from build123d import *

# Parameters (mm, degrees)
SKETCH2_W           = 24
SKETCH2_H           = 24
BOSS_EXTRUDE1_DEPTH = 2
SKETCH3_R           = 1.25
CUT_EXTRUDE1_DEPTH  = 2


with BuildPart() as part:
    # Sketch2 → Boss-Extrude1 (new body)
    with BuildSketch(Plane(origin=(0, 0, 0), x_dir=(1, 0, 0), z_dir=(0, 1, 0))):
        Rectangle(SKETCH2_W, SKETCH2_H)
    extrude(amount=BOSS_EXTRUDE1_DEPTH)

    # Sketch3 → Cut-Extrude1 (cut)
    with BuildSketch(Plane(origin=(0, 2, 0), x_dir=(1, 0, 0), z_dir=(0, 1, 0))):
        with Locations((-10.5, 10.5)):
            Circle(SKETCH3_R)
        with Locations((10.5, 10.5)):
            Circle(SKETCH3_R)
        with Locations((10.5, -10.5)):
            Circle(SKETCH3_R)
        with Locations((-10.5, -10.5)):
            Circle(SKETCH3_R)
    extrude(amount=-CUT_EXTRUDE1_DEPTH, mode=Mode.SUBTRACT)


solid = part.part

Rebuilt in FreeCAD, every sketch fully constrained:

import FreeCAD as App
import Part
import Sketcher

V = App.Vector


def add_polygon(sketch, points):
    """Adds a closed chain of lines whose ends are joined by coincident constraints."""
    first, n = sketch.GeometryCount, len(points)
    for a, b in zip(points, points[1:] + points[:1]):
        sketch.addGeometry(Part.LineSegment(App.Vector(*a, 0), App.Vector(*b, 0)), False)
    for i in range(n):
        sketch.addConstraint(Sketcher.Constraint("Coincident", first + i, 2, first + (i + 1) % n, 1))

doc = App.newDocument("Part")
params = doc.addObject("Spreadsheet::Sheet", "Params")
for row, (alias, value) in enumerate([
    ("sketch1_width", "24 mm"),
    ("pad1_length", "2 mm"),
    ("sketch2_diameter", "2.5 mm"),
    ("pocket1_length", "2 mm"),
], start=1):
    params.set(f"A{row}", alias)
    params.set(f"B{row}", "=" + value)
    params.setAlias(f"B{row}", alias)

body = doc.addObject("PartDesign::Body", "Body")

sketch1 = doc.addObject("Sketcher::SketchObject", "Sketch")
body.addObject(sketch1)
sketch1.AttachmentSupport = (doc.XZ_Plane, [""])
sketch1.MapMode = "FlatFace"
add_polygon(sketch1, [(-12, -12), (-12, 12), (12, 12), (12, -12)])
sketch1.addConstraint(Sketcher.Constraint("Vertical", 0))
sketch1.addConstraint(Sketcher.Constraint("Horizontal", 1))
sketch1.addConstraint(Sketcher.Constraint("Vertical", 2))
sketch1.addConstraint(Sketcher.Constraint("Horizontal", 3))
sketch1.addConstraint(Sketcher.Constraint("Symmetric", 0, 2, 2, 2, -1, 1))
sketch1.addConstraint(Sketcher.Constraint("Equal", 3, 0))
sketch1.addConstraint(Sketcher.Constraint("DistanceX", 1, 1, 1, 2, 24.0))
sketch1.setExpression("Constraints[10]", "Params.sketch1_width")
pad1 = doc.addObject("PartDesign::Pad", "Pad")
body.addObject(pad1)
pad1.Profile = sketch1
pad1.setExpression("Length", "Params.pad1_length")
pad1.Reversed = True

sketch2 = doc.addObject("Sketcher::SketchObject", "Sketch001")
body.addObject(sketch2)
sketch2.AttachmentSupport = (doc.XZ_Plane, [""])
sketch2.MapMode = "FlatFace"
sketch2.AttachmentOffset = App.Placement(V(0, 0, -2), App.Rotation())
sketch2.addGeometry(Part.Circle(V(-10.5, -10.5, 0), V(0, 0, 1), 1.2), False)
sketch2.addGeometry(Part.Circle(V(10.5, -10.5, 0), V(0, 0, 1), 1.2), False)
sketch2.addGeometry(Part.Circle(V(10.5, 10.5, 0), V(0, 0, 1), 1.2), False)
sketch2.addGeometry(Part.Circle(V(-10.5, 10.5, 0), V(0, 0, 1), 1.2), False)
sketch2.addConstraint(Sketcher.Constraint("Equal", 0, 1))
sketch2.addConstraint(Sketcher.Constraint("Equal", 1, 2))
sketch2.addConstraint(Sketcher.Constraint("Equal", 2, 3))
sketch2.addConstraint(Sketcher.Constraint("Symmetric", 0, 3, 2, 3, -1, 1))
sketch2.addConstraint(Sketcher.Constraint("Symmetric", 1, 3, 3, 3, -1, 1))
sketch2.addConstraint(Sketcher.Constraint("Symmetric", 0, 3, 1, 3, -2))
sketch2.addConstraint(Sketcher.Constraint("Diameter", 0, 2.5))
sketch2.addConstraint(Sketcher.Constraint("DistanceX", 0, 3, 1, 3, 21.0))
sketch2.addConstraint(Sketcher.Constraint("DistanceY", 1, 3, 2, 3, 21.0))
sketch2.setExpression("Constraints[6]", "Params.sketch2_diameter")
pocket1 = doc.addObject("PartDesign::Pocket", "Pocket")
body.addObject(pocket1)
pocket1.Profile = sketch2
pocket1.setExpression("Length", "Params.pocket1_length")
pocket1.Reversed = True

doc.recompute()
